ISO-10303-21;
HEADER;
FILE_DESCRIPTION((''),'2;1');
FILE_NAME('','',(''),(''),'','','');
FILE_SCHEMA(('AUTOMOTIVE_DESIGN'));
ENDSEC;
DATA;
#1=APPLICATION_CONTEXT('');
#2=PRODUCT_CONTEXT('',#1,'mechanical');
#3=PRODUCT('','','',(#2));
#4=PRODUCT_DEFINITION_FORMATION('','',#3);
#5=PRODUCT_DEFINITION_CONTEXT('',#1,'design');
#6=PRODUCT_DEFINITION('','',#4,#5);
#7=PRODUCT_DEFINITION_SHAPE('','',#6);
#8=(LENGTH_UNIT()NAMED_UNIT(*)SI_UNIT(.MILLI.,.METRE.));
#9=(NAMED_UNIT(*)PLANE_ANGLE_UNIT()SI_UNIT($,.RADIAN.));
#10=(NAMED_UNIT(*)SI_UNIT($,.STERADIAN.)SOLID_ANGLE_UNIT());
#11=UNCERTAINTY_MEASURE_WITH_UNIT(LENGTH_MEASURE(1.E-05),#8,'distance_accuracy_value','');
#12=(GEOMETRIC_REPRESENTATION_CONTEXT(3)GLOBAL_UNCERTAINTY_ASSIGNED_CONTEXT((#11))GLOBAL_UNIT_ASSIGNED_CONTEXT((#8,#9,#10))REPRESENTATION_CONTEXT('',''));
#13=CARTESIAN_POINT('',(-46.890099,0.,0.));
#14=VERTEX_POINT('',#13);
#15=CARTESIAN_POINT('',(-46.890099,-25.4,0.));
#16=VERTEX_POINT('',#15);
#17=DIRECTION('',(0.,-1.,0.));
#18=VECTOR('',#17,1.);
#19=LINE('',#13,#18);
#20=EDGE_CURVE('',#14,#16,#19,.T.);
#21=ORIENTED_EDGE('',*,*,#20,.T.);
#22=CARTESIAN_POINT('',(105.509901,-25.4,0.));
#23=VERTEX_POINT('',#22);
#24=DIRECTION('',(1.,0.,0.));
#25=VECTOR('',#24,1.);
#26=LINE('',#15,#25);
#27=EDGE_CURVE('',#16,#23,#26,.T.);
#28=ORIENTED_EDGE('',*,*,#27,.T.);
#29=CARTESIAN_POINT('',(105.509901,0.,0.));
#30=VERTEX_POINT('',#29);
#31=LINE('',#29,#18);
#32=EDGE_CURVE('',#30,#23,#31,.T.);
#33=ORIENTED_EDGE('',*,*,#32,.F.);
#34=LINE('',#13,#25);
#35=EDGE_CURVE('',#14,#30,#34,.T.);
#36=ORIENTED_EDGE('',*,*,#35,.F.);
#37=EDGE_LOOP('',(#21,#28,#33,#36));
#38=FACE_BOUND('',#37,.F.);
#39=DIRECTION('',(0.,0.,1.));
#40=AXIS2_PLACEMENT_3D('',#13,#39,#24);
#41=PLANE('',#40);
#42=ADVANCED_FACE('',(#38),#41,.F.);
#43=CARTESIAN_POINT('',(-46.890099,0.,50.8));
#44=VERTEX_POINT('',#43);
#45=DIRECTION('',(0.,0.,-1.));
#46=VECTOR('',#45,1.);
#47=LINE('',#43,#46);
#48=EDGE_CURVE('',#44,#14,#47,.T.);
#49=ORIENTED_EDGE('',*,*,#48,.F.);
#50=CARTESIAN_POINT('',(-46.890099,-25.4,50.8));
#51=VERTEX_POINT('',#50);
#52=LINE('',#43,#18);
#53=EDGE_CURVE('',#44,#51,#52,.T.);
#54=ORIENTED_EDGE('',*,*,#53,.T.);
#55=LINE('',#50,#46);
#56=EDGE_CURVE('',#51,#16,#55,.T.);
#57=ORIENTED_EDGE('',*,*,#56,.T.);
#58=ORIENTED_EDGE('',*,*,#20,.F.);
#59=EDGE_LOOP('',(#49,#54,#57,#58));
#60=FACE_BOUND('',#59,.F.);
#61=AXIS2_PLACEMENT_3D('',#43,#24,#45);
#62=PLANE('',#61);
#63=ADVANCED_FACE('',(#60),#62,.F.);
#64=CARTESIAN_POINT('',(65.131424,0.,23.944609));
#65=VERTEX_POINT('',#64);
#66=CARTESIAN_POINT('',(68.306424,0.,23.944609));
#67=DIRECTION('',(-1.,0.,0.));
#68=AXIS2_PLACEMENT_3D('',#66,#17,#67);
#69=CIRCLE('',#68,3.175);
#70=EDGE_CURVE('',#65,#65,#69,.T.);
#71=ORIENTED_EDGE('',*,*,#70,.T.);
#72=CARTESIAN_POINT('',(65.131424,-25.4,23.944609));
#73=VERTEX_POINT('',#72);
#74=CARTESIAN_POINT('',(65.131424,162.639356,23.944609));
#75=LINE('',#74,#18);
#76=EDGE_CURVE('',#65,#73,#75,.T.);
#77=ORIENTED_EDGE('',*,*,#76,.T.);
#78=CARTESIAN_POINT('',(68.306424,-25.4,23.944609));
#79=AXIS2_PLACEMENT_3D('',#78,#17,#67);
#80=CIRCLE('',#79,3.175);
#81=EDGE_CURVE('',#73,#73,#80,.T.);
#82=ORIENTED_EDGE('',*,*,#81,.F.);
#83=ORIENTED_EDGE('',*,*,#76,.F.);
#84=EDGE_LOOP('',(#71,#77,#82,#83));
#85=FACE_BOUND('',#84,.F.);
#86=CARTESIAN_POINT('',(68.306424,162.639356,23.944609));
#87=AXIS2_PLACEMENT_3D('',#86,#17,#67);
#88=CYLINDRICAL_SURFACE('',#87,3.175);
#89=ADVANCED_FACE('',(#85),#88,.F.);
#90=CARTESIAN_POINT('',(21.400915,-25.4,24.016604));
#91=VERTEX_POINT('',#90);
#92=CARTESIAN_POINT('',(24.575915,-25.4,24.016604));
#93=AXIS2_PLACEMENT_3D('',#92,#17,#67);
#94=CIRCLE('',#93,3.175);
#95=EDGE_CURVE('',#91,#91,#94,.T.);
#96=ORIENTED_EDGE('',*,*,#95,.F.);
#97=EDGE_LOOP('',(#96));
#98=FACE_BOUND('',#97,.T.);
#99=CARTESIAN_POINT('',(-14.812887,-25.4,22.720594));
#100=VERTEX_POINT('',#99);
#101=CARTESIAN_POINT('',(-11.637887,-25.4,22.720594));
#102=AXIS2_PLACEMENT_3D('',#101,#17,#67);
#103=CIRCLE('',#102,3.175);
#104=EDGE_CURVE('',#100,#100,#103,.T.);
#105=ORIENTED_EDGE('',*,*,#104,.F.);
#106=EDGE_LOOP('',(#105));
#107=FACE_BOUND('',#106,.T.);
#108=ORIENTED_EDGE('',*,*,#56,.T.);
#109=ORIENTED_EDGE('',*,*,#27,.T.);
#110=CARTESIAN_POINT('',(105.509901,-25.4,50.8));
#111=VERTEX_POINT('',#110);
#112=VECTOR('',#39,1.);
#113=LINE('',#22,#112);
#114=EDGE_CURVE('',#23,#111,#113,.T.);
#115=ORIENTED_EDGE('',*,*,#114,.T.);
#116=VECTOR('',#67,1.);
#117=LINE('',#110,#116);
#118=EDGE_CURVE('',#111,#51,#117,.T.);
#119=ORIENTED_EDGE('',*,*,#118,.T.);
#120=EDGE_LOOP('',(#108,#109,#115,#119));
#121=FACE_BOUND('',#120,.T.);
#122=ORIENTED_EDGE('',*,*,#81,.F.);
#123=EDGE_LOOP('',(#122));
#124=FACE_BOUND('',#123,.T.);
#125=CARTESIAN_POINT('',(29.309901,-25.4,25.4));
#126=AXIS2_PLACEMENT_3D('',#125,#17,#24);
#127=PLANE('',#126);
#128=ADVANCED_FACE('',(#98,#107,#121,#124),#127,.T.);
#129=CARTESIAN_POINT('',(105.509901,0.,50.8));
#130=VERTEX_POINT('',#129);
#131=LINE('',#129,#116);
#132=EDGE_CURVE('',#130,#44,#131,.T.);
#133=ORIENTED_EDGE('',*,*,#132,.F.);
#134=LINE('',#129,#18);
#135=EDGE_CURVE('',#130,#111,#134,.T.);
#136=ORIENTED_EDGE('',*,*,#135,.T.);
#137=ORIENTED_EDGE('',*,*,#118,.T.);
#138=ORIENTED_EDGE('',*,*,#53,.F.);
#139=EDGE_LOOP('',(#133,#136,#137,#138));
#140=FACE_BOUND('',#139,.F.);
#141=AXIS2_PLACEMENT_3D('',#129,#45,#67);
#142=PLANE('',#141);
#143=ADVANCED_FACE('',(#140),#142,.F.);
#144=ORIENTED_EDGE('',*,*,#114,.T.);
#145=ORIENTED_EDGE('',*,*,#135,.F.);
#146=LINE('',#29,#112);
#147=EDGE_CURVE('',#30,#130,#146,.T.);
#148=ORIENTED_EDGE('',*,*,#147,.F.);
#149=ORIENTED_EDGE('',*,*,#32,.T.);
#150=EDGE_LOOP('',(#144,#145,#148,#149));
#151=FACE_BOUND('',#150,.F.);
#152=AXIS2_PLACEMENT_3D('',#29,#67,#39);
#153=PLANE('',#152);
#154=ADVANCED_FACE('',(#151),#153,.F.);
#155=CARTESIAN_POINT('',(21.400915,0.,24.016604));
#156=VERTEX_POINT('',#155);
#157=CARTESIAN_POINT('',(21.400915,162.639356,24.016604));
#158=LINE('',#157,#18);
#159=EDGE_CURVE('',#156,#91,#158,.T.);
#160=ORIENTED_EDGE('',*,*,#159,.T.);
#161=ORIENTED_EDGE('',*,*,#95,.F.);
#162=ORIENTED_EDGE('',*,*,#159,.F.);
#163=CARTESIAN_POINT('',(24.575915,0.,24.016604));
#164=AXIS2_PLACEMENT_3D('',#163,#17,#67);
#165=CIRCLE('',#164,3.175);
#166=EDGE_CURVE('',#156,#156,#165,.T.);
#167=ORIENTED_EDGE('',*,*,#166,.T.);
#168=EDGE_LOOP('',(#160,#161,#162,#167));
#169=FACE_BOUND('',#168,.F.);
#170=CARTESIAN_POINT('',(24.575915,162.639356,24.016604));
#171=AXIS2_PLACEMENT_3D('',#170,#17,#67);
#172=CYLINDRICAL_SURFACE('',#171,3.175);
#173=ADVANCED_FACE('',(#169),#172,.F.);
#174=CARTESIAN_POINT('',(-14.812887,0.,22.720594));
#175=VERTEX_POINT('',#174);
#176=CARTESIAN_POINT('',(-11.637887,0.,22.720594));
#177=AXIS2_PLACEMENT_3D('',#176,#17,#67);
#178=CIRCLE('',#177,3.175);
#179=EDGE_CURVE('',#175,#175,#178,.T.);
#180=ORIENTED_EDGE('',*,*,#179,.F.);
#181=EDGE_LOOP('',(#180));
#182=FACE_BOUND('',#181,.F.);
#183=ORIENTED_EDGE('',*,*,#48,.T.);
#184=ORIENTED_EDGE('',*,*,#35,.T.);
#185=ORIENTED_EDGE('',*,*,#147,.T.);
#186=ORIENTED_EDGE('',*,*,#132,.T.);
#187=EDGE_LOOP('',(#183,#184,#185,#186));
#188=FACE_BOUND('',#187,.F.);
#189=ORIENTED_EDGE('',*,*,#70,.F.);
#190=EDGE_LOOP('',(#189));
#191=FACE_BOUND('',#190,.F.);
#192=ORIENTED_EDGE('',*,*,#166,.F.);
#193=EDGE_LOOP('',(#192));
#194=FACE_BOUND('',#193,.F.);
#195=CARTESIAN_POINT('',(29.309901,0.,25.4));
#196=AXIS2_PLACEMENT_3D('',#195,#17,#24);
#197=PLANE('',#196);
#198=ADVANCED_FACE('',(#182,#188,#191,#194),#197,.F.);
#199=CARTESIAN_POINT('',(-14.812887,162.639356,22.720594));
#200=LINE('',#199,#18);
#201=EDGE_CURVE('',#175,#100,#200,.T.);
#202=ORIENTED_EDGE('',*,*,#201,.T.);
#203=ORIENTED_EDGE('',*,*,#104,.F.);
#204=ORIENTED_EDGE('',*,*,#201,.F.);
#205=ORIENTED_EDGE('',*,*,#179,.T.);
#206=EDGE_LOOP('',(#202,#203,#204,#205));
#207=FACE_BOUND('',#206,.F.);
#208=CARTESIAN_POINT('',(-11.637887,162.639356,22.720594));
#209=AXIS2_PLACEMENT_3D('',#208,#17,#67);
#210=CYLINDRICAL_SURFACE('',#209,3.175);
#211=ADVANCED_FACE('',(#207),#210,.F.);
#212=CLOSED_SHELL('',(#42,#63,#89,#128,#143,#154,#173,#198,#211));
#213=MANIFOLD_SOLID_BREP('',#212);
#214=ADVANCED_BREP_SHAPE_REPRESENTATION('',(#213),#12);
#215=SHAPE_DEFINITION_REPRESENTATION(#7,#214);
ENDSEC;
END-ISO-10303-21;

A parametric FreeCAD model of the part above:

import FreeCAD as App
import Part
import Sketcher
Q = App.Units.Quantity

doc = App.newDocument("Part")
body = doc.addObject("PartDesign::Body", "Body")

# Sketch on XZ plane
sketch1 = body.newObject("Sketcher::SketchObject", "Sketch")
sketch1.AttachmentSupport = (doc.getObject("XZ_Plane"), [""])
sketch1.MapMode = "FlatFace"
sketch1.addGeometry([
    Part.LineSegment(App.Vector(-46.890099, 50.8, 0), App.Vector(-46.890099, 0, 0)),
    Part.LineSegment(App.Vector(-46.890099, 0, 0), App.Vector(105.509901, 0, 0)),
    Part.LineSegment(App.Vector(105.509901, 0, 0), App.Vector(105.509901, 50.8, 0)),
    Part.LineSegment(App.Vector(105.509901, 50.8, 0), App.Vector(-46.890099, 50.8, 0)),
], False)
sketch1.addConstraint([
    Sketcher.Constraint("Coincident", 0, 2, 1, 1),
    Sketcher.Constraint("Coincident", 1, 2, 2, 1),
    Sketcher.Constraint("Coincident", 2, 2, 3, 1),
    Sketcher.Constraint("Coincident", 3, 2, 0, 1),
    Sketcher.Constraint("Vertical", 0),
    Sketcher.Constraint("Horizontal", 1),
    Sketcher.Constraint("Vertical", 2),
    Sketcher.Constraint("Horizontal", 3),
    Sketcher.Constraint("PointOnObject", 0, 2, -1),
    Sketcher.Constraint("DistanceX", 1, 1, 1, 2, Q("6 in")),
    Sketcher.Constraint("DistanceY", 0, 2, 0, 1, Q("2 in")),
    Sketcher.Constraint("DistanceX", 0, 2, -1, 1, Q("46.890099 mm")),
])
pad1 = body.newObject("PartDesign::Pad", "Pad")
pad1.Profile = sketch1
pad1.Length = Q("1 in")

# Sketch on XZ plane
sketch2 = body.newObject("Sketcher::SketchObject", "Sketch001")
sketch2.AttachmentSupport = (doc.getObject("XZ_Plane"), [""])
sketch2.MapMode = "FlatFace"
sketch2.addGeometry([
    Part.Circle(App.Vector(24.575915, 24.016604, 0), App.Vector(0, 0, 1), 3.175),
    Part.Circle(App.Vector(-11.637887, 22.720594, 0), App.Vector(0, 0, 1), 3.175),
    Part.Circle(App.Vector(68.306424, 23.944609, 0), App.Vector(0, 0, 1), 3.175),
], False)
sketch2.addConstraint([
    Sketcher.Constraint("Equal", 0, 1),
    Sketcher.Constraint("Equal", 1, 2),
    Sketcher.Constraint("Diameter", 0, Q("0.25 in")),
    Sketcher.Constraint("DistanceY", -1, 1, 2, 3, Q("23.944609 mm")),
    Sketcher.Constraint("DistanceY", 1, 3, 0, 3, Q("1.29601 mm")),
    Sketcher.Constraint("DistanceX", 0, 3, 2, 3, Q("43.730509 mm")),
    Sketcher.Constraint("DistanceX", 1, 3, 2, 3, Q("79.944311 mm")),
    Sketcher.Constraint("DistanceX", -1, 1, 0, 3, Q("24.575915 mm")),
    Sketcher.Constraint("DistanceY", -1, 1, 0, 3, Q("24.016604 mm")),
])
doc.recompute()
hole = body.newObject("PartDesign::Hole", "Hole")
hole.Profile = sketch2
hole.ThreadType = "None"
hole.Diameter = Q("0.25 in")
hole.DepthType = "ThroughAll"
hole.Reversed = True

doc.recompute()
